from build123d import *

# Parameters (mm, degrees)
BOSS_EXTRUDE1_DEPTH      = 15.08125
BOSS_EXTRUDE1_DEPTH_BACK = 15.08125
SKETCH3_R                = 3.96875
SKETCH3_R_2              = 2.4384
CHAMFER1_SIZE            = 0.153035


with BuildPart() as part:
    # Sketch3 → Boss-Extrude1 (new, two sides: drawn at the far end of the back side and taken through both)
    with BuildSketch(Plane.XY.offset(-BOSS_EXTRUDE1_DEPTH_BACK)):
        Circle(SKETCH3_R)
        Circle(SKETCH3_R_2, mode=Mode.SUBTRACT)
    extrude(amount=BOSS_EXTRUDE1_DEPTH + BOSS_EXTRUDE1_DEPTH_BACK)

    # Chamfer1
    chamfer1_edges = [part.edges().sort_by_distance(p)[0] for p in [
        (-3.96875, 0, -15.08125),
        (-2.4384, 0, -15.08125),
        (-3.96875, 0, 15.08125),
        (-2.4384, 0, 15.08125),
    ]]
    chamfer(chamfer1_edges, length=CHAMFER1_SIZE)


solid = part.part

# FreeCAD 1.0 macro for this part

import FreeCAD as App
import Part
import Sketcher

V = App.Vector
Q = App.Units.Quantity


def edges_at(feature, points):
    """Names of the edges that pass closest to the given points."""
    edges = feature.Shape.Edges
    near = lambda p: min(range(len(edges)), key=lambda i: edges[i].distToShape(Part.Vertex(*p))[0])
    return sorted({f"Edge{near(p) + 1}" for p in points})

doc = App.newDocument("Part")
body = doc.addObject("PartDesign::Body", "Body")

# Sketch on XY plane
sketch1 = body.newObject("Sketcher::SketchObject", "Sketch")
sketch1.AttachmentSupport = (doc.getObject("XY_Plane"), [""])
sketch1.MapMode = "FlatFace"
sketch1.addGeometry([
    Part.Circle(V(0, 0, 0), V(0, 0, 1), 4),
    Part.Circle(V(0, 0, 0), V(0, 0, 1), 2.4),
], False)
sketch1.addConstraint([
    Sketcher.Constraint("Coincident", 0, 3, -1, 1),
    Sketcher.Constraint("Coincident", 1, 3, -1, 1),
    Sketcher.Constraint("Diameter", 0, Q("0.3125 in")),
    Sketcher.Constraint("Diameter", 1, Q("0.192 in")),
])
pad1 = body.newObject("PartDesign::Pad", "Pad")
pad1.Profile = sketch1
pad1.Type = "TwoLengths"
pad1.Length = Q("0.59375 in")
pad1.Length2 = Q("0.59375 in")
doc.recompute()

chamfer = body.newObject("PartDesign::Chamfer", "Chamfer")
chamfer.Base = (pad1, edges_at(pad1, [
    (-3.969, 0, -15.081),
    (-2.438, 0, -15.081),
    (-3.969, 0, 15.081),
    (-2.438, 0, 15.081),
]))
chamfer.Size = 0.153035

doc.recompute()
